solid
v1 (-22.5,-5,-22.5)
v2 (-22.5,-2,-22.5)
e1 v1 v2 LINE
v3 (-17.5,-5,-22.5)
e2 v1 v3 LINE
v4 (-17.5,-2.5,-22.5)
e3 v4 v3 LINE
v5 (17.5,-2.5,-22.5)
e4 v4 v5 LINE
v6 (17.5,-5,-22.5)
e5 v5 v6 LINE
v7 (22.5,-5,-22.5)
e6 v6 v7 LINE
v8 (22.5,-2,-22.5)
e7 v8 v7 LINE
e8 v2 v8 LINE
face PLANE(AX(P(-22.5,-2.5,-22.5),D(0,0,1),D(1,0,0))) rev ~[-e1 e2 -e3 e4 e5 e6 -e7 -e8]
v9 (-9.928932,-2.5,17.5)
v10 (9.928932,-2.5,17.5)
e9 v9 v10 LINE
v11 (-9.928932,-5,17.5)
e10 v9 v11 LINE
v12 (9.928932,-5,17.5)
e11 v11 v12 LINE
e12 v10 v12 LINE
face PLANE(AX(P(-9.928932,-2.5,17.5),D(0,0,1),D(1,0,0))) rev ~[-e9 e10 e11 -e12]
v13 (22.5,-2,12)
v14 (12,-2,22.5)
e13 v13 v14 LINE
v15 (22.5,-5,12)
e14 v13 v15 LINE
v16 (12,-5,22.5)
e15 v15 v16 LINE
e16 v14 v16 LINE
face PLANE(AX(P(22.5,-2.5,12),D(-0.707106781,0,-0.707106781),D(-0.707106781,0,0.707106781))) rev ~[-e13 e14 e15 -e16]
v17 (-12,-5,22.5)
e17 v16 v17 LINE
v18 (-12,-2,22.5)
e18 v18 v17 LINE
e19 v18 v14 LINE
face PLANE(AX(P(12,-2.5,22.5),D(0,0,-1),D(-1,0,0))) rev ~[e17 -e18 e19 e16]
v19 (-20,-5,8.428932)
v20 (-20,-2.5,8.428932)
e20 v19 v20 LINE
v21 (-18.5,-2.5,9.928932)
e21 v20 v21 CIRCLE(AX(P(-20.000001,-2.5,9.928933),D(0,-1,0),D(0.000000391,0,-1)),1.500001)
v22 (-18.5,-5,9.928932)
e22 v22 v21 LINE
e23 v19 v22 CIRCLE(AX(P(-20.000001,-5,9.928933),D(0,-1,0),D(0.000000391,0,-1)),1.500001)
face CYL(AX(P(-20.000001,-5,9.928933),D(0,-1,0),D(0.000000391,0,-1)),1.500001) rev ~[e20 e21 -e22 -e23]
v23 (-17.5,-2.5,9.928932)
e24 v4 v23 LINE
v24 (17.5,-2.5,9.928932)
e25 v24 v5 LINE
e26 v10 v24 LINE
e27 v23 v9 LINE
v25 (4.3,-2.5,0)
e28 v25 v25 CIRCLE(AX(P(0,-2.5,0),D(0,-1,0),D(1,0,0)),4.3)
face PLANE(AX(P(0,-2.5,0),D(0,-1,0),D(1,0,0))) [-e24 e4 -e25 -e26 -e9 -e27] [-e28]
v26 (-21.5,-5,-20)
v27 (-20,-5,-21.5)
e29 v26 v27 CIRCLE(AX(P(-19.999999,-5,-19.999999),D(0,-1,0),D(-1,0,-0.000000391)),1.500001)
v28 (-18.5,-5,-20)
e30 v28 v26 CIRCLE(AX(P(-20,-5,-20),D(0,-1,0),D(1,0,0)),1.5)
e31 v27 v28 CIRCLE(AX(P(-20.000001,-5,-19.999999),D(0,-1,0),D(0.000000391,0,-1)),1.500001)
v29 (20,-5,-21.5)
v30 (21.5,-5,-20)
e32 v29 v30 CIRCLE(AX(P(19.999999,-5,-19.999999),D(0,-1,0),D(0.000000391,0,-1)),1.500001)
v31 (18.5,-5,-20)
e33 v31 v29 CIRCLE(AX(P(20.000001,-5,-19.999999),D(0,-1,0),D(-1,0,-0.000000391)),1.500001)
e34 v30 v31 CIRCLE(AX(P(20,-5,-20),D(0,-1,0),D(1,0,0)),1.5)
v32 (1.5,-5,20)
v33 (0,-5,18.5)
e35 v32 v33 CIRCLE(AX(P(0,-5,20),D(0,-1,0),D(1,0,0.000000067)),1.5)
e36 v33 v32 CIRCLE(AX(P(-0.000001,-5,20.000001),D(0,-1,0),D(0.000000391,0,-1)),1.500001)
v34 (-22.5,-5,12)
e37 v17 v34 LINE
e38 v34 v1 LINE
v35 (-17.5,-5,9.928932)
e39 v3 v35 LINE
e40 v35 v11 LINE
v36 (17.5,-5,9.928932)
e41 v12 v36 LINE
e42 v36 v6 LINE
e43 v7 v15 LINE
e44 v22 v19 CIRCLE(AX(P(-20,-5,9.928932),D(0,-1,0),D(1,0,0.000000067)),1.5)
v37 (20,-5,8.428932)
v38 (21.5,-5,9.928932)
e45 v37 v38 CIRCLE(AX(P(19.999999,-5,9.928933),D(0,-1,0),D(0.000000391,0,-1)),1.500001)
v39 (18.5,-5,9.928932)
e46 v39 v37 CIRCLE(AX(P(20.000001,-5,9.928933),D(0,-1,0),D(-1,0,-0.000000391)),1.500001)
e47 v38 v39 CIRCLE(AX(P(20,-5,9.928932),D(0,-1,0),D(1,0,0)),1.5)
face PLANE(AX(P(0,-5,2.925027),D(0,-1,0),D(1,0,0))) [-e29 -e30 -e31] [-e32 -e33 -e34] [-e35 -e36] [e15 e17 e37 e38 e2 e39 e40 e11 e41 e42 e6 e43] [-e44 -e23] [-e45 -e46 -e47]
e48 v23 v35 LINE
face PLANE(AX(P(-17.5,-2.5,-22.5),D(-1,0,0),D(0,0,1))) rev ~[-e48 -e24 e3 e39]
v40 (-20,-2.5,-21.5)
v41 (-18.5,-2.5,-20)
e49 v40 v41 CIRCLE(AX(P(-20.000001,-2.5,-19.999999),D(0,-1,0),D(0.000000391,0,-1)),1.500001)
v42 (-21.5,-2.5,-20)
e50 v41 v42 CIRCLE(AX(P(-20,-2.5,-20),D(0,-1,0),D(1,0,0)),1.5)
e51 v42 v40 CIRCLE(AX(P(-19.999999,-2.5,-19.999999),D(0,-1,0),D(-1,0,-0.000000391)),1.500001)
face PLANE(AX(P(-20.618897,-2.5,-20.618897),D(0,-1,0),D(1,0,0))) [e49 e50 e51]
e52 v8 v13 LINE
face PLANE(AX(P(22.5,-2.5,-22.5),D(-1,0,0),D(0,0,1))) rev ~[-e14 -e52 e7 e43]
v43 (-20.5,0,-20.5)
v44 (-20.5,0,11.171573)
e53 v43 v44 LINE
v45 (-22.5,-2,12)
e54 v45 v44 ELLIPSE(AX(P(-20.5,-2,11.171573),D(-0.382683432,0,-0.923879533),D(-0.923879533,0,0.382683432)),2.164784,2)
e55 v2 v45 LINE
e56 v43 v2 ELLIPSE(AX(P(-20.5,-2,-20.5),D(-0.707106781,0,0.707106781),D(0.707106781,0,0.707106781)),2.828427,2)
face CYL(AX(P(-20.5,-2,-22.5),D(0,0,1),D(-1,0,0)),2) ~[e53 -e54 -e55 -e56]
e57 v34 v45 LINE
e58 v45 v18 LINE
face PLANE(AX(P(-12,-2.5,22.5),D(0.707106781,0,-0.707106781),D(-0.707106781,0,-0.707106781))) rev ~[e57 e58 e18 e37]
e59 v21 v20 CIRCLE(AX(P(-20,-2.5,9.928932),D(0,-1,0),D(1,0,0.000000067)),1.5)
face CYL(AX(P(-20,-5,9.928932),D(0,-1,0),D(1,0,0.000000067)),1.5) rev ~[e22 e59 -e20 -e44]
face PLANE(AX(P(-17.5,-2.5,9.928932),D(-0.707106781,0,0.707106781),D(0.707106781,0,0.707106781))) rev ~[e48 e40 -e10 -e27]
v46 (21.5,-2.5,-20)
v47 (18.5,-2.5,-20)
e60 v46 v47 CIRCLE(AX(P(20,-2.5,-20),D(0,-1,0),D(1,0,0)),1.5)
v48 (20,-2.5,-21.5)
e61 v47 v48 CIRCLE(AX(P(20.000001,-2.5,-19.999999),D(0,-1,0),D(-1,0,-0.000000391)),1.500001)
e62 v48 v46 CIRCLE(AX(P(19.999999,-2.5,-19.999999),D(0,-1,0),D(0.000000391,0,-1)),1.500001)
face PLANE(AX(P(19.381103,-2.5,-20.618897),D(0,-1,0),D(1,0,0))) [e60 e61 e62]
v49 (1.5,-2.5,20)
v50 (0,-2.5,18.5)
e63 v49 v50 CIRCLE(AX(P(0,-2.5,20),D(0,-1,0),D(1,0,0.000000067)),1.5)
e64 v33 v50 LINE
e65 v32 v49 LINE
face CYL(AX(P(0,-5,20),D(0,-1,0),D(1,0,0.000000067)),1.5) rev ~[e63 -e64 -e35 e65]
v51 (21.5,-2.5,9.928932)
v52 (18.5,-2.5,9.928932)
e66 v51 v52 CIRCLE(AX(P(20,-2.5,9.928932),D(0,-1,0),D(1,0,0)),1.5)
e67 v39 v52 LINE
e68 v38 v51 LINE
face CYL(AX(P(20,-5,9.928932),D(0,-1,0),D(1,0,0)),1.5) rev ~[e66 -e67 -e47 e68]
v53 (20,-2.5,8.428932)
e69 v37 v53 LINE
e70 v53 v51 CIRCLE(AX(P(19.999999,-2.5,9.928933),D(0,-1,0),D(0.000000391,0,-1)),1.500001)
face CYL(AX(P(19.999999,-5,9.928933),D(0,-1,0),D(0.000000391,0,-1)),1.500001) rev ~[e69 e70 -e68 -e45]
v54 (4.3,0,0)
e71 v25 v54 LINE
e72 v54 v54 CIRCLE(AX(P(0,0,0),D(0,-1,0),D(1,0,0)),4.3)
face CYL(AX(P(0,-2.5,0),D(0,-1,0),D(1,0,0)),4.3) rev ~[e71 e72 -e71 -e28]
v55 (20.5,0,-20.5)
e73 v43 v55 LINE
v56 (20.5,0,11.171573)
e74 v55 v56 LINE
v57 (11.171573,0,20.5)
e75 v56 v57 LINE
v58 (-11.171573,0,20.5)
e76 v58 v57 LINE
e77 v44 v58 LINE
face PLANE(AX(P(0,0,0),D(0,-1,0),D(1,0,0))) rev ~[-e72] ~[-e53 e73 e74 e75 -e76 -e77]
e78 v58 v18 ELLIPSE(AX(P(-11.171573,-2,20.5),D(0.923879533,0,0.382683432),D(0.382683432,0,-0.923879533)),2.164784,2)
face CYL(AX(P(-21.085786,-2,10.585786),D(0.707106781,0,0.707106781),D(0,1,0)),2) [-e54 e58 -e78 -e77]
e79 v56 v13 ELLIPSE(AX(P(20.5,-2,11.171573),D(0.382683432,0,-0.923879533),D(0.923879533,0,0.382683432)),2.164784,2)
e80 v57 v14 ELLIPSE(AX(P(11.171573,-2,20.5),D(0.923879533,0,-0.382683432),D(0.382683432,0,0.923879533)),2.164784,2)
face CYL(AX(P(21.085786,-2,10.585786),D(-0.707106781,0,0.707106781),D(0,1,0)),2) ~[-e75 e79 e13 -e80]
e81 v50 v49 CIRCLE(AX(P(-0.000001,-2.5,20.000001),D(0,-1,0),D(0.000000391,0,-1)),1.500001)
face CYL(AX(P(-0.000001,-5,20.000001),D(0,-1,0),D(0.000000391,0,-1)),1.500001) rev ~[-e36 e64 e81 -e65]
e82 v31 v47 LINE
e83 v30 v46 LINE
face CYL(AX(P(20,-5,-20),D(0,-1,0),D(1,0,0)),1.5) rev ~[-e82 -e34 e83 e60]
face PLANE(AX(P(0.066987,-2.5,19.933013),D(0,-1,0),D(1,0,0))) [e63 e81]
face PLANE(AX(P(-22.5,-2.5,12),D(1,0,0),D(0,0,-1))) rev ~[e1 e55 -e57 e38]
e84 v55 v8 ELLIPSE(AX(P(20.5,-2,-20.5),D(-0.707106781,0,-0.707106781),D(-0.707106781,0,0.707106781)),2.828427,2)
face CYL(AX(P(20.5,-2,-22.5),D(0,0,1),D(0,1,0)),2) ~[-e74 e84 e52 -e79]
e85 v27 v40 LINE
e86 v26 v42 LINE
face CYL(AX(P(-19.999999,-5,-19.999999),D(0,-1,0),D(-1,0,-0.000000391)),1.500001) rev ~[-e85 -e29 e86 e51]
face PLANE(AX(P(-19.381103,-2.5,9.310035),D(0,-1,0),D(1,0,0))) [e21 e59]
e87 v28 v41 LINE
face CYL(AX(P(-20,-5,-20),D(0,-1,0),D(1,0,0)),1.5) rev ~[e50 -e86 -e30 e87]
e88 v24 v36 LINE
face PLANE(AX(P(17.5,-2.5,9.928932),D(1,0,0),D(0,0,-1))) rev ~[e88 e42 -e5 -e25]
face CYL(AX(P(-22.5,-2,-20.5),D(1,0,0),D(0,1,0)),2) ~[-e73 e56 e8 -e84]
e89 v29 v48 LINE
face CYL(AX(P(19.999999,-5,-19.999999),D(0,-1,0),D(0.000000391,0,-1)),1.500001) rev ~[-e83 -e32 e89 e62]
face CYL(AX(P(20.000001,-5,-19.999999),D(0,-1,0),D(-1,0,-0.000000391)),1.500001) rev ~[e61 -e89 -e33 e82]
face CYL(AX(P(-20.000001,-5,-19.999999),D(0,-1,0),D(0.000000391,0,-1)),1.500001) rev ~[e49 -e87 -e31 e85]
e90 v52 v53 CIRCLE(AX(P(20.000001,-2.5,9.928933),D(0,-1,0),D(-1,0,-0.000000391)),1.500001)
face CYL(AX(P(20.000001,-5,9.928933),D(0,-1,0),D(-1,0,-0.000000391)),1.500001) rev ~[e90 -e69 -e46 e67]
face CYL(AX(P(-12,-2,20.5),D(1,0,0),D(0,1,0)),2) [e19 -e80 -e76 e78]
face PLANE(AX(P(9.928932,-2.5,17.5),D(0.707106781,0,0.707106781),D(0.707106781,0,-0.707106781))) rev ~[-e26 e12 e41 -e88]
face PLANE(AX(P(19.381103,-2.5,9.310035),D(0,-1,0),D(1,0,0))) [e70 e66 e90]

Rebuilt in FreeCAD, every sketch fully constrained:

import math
import FreeCAD as App
import Part
import Sketcher
from FreeCAD import Vector


def edges_at(feature, points):
    """Names of the edges that pass closest to the given points."""
    edges = feature.Shape.Edges
    near = lambda p: min(range(len(edges)), key=lambda i: edges[i].distToShape(Part.Vertex(*p))[0])
    return sorted({f"Edge{near(p) + 1}" for p in points})

doc = App.newDocument("Part")
body = doc.addObject("PartDesign::Body", "Body")

# Sketch on XZ plane
sketch1 = doc.addObject("Sketcher::SketchObject", "Sketch")
body.addObject(sketch1)
sketch1.AttachmentSupport = (doc.XZ_Plane, [""])
sketch1.MapMode = "FlatFace"
sketch1.addGeometry([
    Part.LineSegment(Vector(-22, 22, 0), Vector(-22, -22, 0)),
    Part.LineSegment(Vector(-22, -22, 0), Vector(22, -22, 0)),
    Part.LineSegment(Vector(22, -22, 0), Vector(22, 22, 0)),
    Part.LineSegment(Vector(22, 22, 0), Vector(-22, 22, 0)),
], False)
sketch1.addConstraint([
    Sketcher.Constraint("Coincident", 0, 2, 1, 1),
    Sketcher.Constraint("Coincident", 1, 2, 2, 1),
    Sketcher.Constraint("Coincident", 2, 2, 3, 1),
    Sketcher.Constraint("Coincident", 3, 2, 0, 1),
    Sketcher.Constraint("Vertical", 0),
    Sketcher.Constraint("Horizontal", 1),
    Sketcher.Constraint("Vertical", 2),
    Sketcher.Constraint("Horizontal", 3),
    Sketcher.Constraint("Symmetric", 0, 2, 2, 2, -1, 1),
    Sketcher.Constraint("Equal", 3, 0),
    Sketcher.Constraint("DistanceX", 1, 1, 1, 2, 45.0),
])
pad1 = doc.addObject("PartDesign::Pad", "Pad")
body.addObject(pad1)
pad1.Profile = sketch1
pad1.Length = 2.5
doc.recompute()

chamfer = doc.addObject("PartDesign::Chamfer", "Chamfer")
body.addObject(chamfer)
chamfer.Base = (pad1, edges_at(pad1, [(-22.5, -1.25, 22.5), (22.5, -1.25, 22.5)]))
chamfer.Size = 10.5

# Sketch on XZ plane
sketch2 = doc.addObject("Sketcher::SketchObject", "Sketch001")
body.addObject(sketch2)
sketch2.AttachmentSupport = (doc.XZ_Plane, [""])
sketch2.MapMode = "FlatFace"
sketch2.AttachmentOffset = App.Placement(Vector(0, 0, 2.5), App.Rotation())
sketch2.addGeometry([
    Part.LineSegment(Vector(-18, -22, 0), Vector(-18, 10, 0)),  # 0
    Part.LineSegment(Vector(-18, 10, 0), Vector(-10, 18, 0)),  # 1
    Part.LineSegment(Vector(-10, 18, 0), Vector(10, 18, 0)),  # 2
    Part.LineSegment(Vector(10, 18, 0), Vector(18, 10, 0)),  # 3
    Part.LineSegment(Vector(18, 10, 0), Vector(18, -22, 0)),  # 4
    Part.LineSegment(Vector(18, -22, 0), Vector(22, -22, 0)),  # 5
    Part.LineSegment(Vector(22, -22, 0), Vector(22, 12, 0)),  # 6
    Part.LineSegment(Vector(22, 12, 0), Vector(12, 22, 0)),  # 7
    Part.LineSegment(Vector(12, 22, 0), Vector(-12, 22, 0)),  # 8
    Part.LineSegment(Vector(-12, 22, 0), Vector(-22, 12, 0)),  # 9
    Part.LineSegment(Vector(-22, 12, 0), Vector(-22, -22, 0)),  # 10
    Part.LineSegment(Vector(-22, -22, 0), Vector(-18, -22, 0)),  # 11
], False)
sketch2.addConstraint([
    Sketcher.Constraint("Coincident", 0, 2, 1, 1),
    Sketcher.Constraint("Coincident", 1, 2, 2, 1),
    Sketcher.Constraint("Coincident", 2, 2, 3, 1),
    Sketcher.Constraint("Coincident", 3, 2, 4, 1),
    Sketcher.Constraint("Coincident", 4, 2, 5, 1),
    Sketcher.Constraint("Coincident", 5, 2, 6, 1),
    Sketcher.Constraint("Coincident", 6, 2, 7, 1),
    Sketcher.Constraint("Coincident", 7, 2, 8, 1),
    Sketcher.Constraint("Coincident", 8, 2, 9, 1),
    Sketcher.Constraint("Coincident", 9, 2, 10, 1),
    Sketcher.Constraint("Coincident", 10, 2, 11, 1),
    Sketcher.Constraint("Coincident", 11, 2, 0, 1),
    Sketcher.Constraint("Vertical", 0),
    Sketcher.Constraint("Horizontal", 2),
    Sketcher.Constraint("Vertical", 4),
    Sketcher.Constraint("Horizontal", 5),
    Sketcher.Constraint("Vertical", 6),
    Sketcher.Constraint("Horizontal", 8),
    Sketcher.Constraint("Vertical", 10),
    Sketcher.Constraint("Horizontal", 11),
    Sketcher.Constraint("Symmetric", 0, 2, 3, 2, -2),
    Sketcher.Constraint("Symmetric", 6, 2, 9, 2, -2),
    Sketcher.Constraint("Perpendicular", 1, 3),
    Sketcher.Constraint("Parallel", 3, 7),
    Sketcher.Constraint("Perpendicular", 7, 9),
    Sketcher.Constraint("Horizontal", 5, 2, 10, 2),
    Sketcher.Constraint("Equal", 1, 3),
    Sketcher.Constraint("DistanceX", 5, 1, 5, 2, 5.0),
    Sketcher.Constraint("DistanceX", 8, 2, 8, 1, 24.0),
    Sketcher.Constraint("DistanceY", 6, 1, 6, 2, 34.5),
    Sketcher.Constraint("DistanceY", -1, 1, 6, 2, 12.0),
    Sketcher.Constraint("DistanceX", 0, 2, 3, 2, 35.0),
    Sketcher.Constraint("DistanceY", 4, 2, 2, 2, 40.0),
    Sketcher.Constraint("DistanceX", 2, 1, 2, 2, 19.857864),
])
pad2 = doc.addObject("PartDesign::Pad", "Pad001")
body.addObject(pad2)
pad2.Profile = sketch2
pad2.Length = 2.5
doc.recompute()

fillet = doc.addObject("PartDesign::Fillet", "Fillet")
body.addObject(fillet)
fillet.Base = (pad2, edges_at(pad2, [
    (22.5, 0, -5.25),
    (17.25, 0, 17.25),
    (0, 0, -22.5),
    (0, 0, 22.5),
    (-22.5, 0, -5.25),
    (-17.25, 0, 17.25),
]))
fillet.Radius = 2

# Sketch on XZ plane
sketch3 = doc.addObject("Sketcher::SketchObject", "Sketch002")
body.addObject(sketch3)
sketch3.AttachmentSupport = (doc.XZ_Plane, [""])
sketch3.MapMode = "FlatFace"
sketch3.AttachmentOffset = App.Placement(Vector(0, 0, 2.5), App.Rotation())
sketch3.addGeometry(Part.Circle(Vector(0, 0, 0), Vector(0, 0, 1), 4.3), False)
sketch3.addConstraint([
    Sketcher.Constraint("Coincident", 0, 3, -1, 1),
    Sketcher.Constraint("Diameter", 0, 8.6),
])
pocket1 = doc.addObject("PartDesign::Pocket", "Pocket")
body.addObject(pocket1)
pocket1.Profile = sketch3
pocket1.Length = 25

# Sketch on XZ plane
sketch4 = doc.addObject("Sketcher::SketchObject", "Sketch003")
body.addObject(sketch4)
sketch4.AttachmentSupport = (doc.XZ_Plane, [""])
sketch4.MapMode = "FlatFace"
sketch4.AttachmentOffset = App.Placement(Vector(0, 0, 5), App.Rotation())
sketch4.addGeometry([
    Part.ArcOfCircle(Part.Circle(Vector(20, -20, 0), Vector(0, 0, 1), 1.5), math.radians(-180), math.radians(-90)),  # 0
    Part.ArcOfCircle(Part.Circle(Vector(20, -20, 0), Vector(0, 0, 1), 1.5), math.radians(-90), math.radians(0)),  # 1
    Part.ArcOfCircle(Part.Circle(Vector(20, -20, 0), Vector(0, 0, 1), 1.5), math.radians(0), math.radians(180)),  # 2
    Part.ArcOfCircle(Part.Circle(Vector(-20, -20, 0), Vector(0, 0, 1), 1.5), math.radians(-180), math.radians(-90)),  # 3
    Part.ArcOfCircle(Part.Circle(Vector(-20, -20, 0), Vector(0, 0, 1), 1.5), math.radians(-90), math.radians(0)),  # 4
    Part.ArcOfCircle(Part.Circle(Vector(-20, -20, 0), Vector(0, 0, 1), 1.5), math.radians(0), math.radians(180)),  # 5
    Part.ArcOfCircle(Part.Circle(Vector(-20, 9.9, 0), Vector(0, 0, 1), 1.5), math.radians(-90), math.radians(0)),  # 6
    Part.ArcOfCircle(Part.Circle(Vector(-20, 9.9, 0), Vector(0, 0, 1), 1.5), math.radians(0), math.radians(270)),  # 7
    Part.ArcOfCircle(Part.Circle(Vector(0, 20, 0), Vector(0, 0, 1), 1.5), math.radians(0), math.radians(270)),  # 8
    Part.ArcOfCircle(Part.Circle(Vector(0, 20, 0), Vector(0, 0, 1), 1.5), math.radians(-90), math.radians(0)),  # 9
    Part.ArcOfCircle(Part.Circle(Vector(20, 9.9, 0), Vector(0, 0, 1), 1.5), math.radians(-180), math.radians(-90)),  # 10
    Part.ArcOfCircle(Part.Circle(Vector(20, 9.9, 0), Vector(0, 0, 1), 1.5), math.radians(-90), math.radians(0)),  # 11
    Part.ArcOfCircle(Part.Circle(Vector(20, 9.9, 0), Vector(0, 0, 1), 1.5), math.radians(0), math.radians(180)),  # 12
], False)
sketch4.addConstraint([
    Sketcher.Constraint("Tangent", 0, 2, 1, 1),
    Sketcher.Constraint("Tangent", 1, 2, 2, 1),
    Sketcher.Constraint("Tangent", 2, 2, 0, 1),
    Sketcher.Constraint("Tangent", 3, 2, 4, 1),
    Sketcher.Constraint("Tangent", 4, 2, 5, 1),
    Sketcher.Constraint("Tangent", 5, 2, 3, 1),
    Sketcher.Constraint("Tangent", 6, 1, 7, 2),
    Sketcher.Constraint("Coincident", 7, 1, 6, 2),
    Sketcher.Constraint("Tangent", 8, 1, 9, 2),
    Sketcher.Constraint("Coincident", 9, 1, 8, 2),
    Sketcher.Constraint("Tangent", 10, 2, 11, 1),
    Sketcher.Constraint("Tangent", 11, 2, 12, 1),
    Sketcher.Constraint("Tangent", 12, 2, 10, 1),
    Sketcher.Constraint("Equal", 2, 3),
    Sketcher.Constraint("Equal", 5, 6),
    Sketcher.Constraint("Equal", 7, 8),
    Sketcher.Constraint("Equal", 9, 10),
    Sketcher.Constraint("Symmetric", 0, 3, 3, 3, -2),
    Sketcher.Constraint("Symmetric", 6, 3, 10, 3, -2),
    Sketcher.Constraint("PointOnObject", 8, 3, -2),
    Sketcher.Constraint("PointOnObject", 9, 1, -2),
    Sketcher.Constraint("Horizontal", 5, 3, 1, 2),
    Sketcher.Constraint("Horizontal", 1, 2, 2, 2),
    Sketcher.Constraint("Horizontal", 2, 2, 4, 2),
    Sketcher.Constraint("Horizontal", 4, 2, 5, 2),
    Sketcher.Constraint("Horizontal", 12, 3, 7, 1),
    Sketcher.Constraint("Horizontal", 9, 3, 8, 1),
    Sketcher.Constraint("Horizontal", 7, 1, 11, 2),
    Sketcher.Constraint("Horizontal", 11, 2, 12, 2),
    Sketcher.Constraint("Vertical", 5, 3, 6, 3),
    Sketcher.Constraint("Vertical", 12, 3, 0, 2),
    Sketcher.Constraint("Vertical", 7, 3, 3, 2),
    Sketcher.Constraint("Vertical", 3, 2, 6, 1),
    Sketcher.Constraint("Vertical", 0, 2, 10, 2),
    Sketcher.Constraint("Radius", 0, 1.500001),
    Sketcher.Constraint("DistanceX", -1, 1, 0, 3, 20.000001),
    Sketcher.Constraint("DistanceY", 0, 3, -1, 1, 19.999999),
    Sketcher.Constraint("DistanceY", -1, 1, 8, 3, 20.0),
    Sketcher.Constraint("DistanceY", -1, 1, 7, 3, 9.928932),
])
pocket2 = doc.addObject("PartDesign::Pocket", "Pocket001")
body.addObject(pocket2)
pocket2.Profile = sketch4
pocket2.Length = 2.5

doc.recompute()
